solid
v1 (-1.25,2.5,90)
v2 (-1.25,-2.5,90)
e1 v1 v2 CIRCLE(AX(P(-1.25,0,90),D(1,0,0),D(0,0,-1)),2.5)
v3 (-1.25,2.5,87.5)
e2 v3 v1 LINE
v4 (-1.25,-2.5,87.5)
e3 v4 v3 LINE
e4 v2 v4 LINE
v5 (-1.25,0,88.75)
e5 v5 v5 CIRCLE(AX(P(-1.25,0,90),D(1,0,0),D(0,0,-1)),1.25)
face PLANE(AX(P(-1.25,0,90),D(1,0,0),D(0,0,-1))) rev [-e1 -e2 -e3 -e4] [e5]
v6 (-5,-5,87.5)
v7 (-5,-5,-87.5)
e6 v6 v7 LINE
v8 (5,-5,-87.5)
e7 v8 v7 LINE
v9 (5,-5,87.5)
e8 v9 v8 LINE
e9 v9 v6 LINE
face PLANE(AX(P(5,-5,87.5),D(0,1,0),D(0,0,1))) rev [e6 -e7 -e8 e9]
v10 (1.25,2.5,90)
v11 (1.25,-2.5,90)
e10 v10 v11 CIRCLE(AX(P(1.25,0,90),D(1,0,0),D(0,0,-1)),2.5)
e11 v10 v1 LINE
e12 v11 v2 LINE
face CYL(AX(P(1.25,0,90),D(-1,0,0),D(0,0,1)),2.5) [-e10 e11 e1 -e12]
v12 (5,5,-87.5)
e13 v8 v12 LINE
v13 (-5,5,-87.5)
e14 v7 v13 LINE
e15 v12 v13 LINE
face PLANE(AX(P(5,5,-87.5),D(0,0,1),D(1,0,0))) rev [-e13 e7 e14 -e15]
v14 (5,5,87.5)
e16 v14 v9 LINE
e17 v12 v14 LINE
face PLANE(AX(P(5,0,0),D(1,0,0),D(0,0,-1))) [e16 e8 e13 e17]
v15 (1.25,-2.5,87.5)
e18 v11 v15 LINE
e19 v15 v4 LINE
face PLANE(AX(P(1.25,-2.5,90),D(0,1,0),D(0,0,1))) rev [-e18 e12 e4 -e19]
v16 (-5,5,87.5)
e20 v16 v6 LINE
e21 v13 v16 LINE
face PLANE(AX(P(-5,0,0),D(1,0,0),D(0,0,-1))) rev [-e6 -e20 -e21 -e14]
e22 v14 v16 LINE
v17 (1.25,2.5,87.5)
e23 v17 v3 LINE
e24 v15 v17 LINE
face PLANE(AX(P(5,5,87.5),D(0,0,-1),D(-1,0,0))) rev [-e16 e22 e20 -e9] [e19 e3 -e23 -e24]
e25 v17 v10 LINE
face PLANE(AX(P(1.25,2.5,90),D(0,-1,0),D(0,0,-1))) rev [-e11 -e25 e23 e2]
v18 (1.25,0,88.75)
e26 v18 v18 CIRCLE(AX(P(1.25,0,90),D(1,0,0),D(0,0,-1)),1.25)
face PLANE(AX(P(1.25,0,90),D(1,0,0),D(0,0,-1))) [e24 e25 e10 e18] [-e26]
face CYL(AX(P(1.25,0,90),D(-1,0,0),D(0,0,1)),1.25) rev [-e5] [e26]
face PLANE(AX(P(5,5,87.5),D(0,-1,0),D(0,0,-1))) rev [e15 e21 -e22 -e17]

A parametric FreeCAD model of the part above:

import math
import FreeCAD as App
import Part
import Sketcher

V = App.Vector

doc = App.newDocument("Part")
body = doc.addObject("PartDesign::Body", "Body")

# Sketch on YZ plane
sketch1 = body.newObject("Sketcher::SketchObject", "Sketch")
sketch1.AttachmentSupport = (doc.getObject("YZ_Plane"), [""])
sketch1.MapMode = "FlatFace"
sketch1.addGeometry([
    Part.LineSegment(V(5, 87.5, 0), V(-5, 87.5, 0)),
    Part.LineSegment(V(-5, 87.5, 0), V(-5, -87.5, 0)),
    Part.LineSegment(V(-5, -87.5, 0), V(5, -87.5, 0)),
    Part.LineSegment(V(5, -87.5, 0), V(5, 87.5, 0)),
], False)
sketch1.addConstraint([
    Sketcher.Constraint("Coincident", 0, 2, 1, 1),
    Sketcher.Constraint("Coincident", 1, 2, 2, 1),
    Sketcher.Constraint("Coincident", 2, 2, 3, 1),
    Sketcher.Constraint("Coincident", 3, 2, 0, 1),
    Sketcher.Constraint("Horizontal", 0),
    Sketcher.Constraint("Vertical", 1),
    Sketcher.Constraint("Horizontal", 2),
    Sketcher.Constraint("Vertical", 3),
    Sketcher.Constraint("Symmetric", 0, 2, 2, 2, -1, 1),
    Sketcher.Constraint("DistanceX", 0, 2, 0, 1, 10.0),
    Sketcher.Constraint("DistanceY", 1, 2, 1, 1, 175.0),
])
pad1 = body.newObject("PartDesign::Pad", "Pad")
pad1.Profile = sketch1
pad1.Length = 10
pad1.Midplane = True

# Sketch on YZ plane
sketch2 = body.newObject("Sketcher::SketchObject", "Sketch001")
sketch2.AttachmentSupport = (doc.getObject("YZ_Plane"), [""])
sketch2.MapMode = "FlatFace"
sketch2.addGeometry([
    Part.LineSegment(V(2.5, 87.5, 0), V(2.5, 90, 0)),  # 0
    Part.ArcOfCircle(Part.Circle(V(0, 90, 0), V(0, 0, 1), 2.5), math.radians(0), math.radians(180)),  # 1
    Part.LineSegment(V(-2.5, 90, 0), V(-2.5, 87.5, 0)),  # 2
    Part.LineSegment(V(-2.5, 87.5, 0), V(2.5, 87.5, 0)),  # 3
    Part.Circle(V(0, 90, 0), V(0, 0, 1), 1.25),  # 4
], False)
sketch2.addConstraint([
    Sketcher.Constraint("Tangent", 0, 2, 1, 1),
    Sketcher.Constraint("Tangent", 1, 2, 2, 1),
    Sketcher.Constraint("Coincident", 2, 2, 3, 1),
    Sketcher.Constraint("Coincident", 3, 2, 0, 1),
    Sketcher.Constraint("Vertical", 0),
    Sketcher.Constraint("Vertical", 2),
    Sketcher.Constraint("Horizontal", 3),
    Sketcher.Constraint("Coincident", 4, 3, 1, 3),
    Sketcher.Constraint("PointOnObject", 1, 3, -2),
    Sketcher.Constraint("Diameter", 4, 2.5),
    Sketcher.Constraint("Radius", 1, 2.5),
    Sketcher.Constraint("DistanceY", 0, 1, 0, 2, 2.5),
    Sketcher.Constraint("DistanceY", -1, 1, 1, 3, 90.0),
])
pad2 = body.newObject("PartDesign::Pad", "Pad001")
pad2.Profile = sketch2
pad2.Length = 2.5
pad2.Midplane = True

doc.recompute()
